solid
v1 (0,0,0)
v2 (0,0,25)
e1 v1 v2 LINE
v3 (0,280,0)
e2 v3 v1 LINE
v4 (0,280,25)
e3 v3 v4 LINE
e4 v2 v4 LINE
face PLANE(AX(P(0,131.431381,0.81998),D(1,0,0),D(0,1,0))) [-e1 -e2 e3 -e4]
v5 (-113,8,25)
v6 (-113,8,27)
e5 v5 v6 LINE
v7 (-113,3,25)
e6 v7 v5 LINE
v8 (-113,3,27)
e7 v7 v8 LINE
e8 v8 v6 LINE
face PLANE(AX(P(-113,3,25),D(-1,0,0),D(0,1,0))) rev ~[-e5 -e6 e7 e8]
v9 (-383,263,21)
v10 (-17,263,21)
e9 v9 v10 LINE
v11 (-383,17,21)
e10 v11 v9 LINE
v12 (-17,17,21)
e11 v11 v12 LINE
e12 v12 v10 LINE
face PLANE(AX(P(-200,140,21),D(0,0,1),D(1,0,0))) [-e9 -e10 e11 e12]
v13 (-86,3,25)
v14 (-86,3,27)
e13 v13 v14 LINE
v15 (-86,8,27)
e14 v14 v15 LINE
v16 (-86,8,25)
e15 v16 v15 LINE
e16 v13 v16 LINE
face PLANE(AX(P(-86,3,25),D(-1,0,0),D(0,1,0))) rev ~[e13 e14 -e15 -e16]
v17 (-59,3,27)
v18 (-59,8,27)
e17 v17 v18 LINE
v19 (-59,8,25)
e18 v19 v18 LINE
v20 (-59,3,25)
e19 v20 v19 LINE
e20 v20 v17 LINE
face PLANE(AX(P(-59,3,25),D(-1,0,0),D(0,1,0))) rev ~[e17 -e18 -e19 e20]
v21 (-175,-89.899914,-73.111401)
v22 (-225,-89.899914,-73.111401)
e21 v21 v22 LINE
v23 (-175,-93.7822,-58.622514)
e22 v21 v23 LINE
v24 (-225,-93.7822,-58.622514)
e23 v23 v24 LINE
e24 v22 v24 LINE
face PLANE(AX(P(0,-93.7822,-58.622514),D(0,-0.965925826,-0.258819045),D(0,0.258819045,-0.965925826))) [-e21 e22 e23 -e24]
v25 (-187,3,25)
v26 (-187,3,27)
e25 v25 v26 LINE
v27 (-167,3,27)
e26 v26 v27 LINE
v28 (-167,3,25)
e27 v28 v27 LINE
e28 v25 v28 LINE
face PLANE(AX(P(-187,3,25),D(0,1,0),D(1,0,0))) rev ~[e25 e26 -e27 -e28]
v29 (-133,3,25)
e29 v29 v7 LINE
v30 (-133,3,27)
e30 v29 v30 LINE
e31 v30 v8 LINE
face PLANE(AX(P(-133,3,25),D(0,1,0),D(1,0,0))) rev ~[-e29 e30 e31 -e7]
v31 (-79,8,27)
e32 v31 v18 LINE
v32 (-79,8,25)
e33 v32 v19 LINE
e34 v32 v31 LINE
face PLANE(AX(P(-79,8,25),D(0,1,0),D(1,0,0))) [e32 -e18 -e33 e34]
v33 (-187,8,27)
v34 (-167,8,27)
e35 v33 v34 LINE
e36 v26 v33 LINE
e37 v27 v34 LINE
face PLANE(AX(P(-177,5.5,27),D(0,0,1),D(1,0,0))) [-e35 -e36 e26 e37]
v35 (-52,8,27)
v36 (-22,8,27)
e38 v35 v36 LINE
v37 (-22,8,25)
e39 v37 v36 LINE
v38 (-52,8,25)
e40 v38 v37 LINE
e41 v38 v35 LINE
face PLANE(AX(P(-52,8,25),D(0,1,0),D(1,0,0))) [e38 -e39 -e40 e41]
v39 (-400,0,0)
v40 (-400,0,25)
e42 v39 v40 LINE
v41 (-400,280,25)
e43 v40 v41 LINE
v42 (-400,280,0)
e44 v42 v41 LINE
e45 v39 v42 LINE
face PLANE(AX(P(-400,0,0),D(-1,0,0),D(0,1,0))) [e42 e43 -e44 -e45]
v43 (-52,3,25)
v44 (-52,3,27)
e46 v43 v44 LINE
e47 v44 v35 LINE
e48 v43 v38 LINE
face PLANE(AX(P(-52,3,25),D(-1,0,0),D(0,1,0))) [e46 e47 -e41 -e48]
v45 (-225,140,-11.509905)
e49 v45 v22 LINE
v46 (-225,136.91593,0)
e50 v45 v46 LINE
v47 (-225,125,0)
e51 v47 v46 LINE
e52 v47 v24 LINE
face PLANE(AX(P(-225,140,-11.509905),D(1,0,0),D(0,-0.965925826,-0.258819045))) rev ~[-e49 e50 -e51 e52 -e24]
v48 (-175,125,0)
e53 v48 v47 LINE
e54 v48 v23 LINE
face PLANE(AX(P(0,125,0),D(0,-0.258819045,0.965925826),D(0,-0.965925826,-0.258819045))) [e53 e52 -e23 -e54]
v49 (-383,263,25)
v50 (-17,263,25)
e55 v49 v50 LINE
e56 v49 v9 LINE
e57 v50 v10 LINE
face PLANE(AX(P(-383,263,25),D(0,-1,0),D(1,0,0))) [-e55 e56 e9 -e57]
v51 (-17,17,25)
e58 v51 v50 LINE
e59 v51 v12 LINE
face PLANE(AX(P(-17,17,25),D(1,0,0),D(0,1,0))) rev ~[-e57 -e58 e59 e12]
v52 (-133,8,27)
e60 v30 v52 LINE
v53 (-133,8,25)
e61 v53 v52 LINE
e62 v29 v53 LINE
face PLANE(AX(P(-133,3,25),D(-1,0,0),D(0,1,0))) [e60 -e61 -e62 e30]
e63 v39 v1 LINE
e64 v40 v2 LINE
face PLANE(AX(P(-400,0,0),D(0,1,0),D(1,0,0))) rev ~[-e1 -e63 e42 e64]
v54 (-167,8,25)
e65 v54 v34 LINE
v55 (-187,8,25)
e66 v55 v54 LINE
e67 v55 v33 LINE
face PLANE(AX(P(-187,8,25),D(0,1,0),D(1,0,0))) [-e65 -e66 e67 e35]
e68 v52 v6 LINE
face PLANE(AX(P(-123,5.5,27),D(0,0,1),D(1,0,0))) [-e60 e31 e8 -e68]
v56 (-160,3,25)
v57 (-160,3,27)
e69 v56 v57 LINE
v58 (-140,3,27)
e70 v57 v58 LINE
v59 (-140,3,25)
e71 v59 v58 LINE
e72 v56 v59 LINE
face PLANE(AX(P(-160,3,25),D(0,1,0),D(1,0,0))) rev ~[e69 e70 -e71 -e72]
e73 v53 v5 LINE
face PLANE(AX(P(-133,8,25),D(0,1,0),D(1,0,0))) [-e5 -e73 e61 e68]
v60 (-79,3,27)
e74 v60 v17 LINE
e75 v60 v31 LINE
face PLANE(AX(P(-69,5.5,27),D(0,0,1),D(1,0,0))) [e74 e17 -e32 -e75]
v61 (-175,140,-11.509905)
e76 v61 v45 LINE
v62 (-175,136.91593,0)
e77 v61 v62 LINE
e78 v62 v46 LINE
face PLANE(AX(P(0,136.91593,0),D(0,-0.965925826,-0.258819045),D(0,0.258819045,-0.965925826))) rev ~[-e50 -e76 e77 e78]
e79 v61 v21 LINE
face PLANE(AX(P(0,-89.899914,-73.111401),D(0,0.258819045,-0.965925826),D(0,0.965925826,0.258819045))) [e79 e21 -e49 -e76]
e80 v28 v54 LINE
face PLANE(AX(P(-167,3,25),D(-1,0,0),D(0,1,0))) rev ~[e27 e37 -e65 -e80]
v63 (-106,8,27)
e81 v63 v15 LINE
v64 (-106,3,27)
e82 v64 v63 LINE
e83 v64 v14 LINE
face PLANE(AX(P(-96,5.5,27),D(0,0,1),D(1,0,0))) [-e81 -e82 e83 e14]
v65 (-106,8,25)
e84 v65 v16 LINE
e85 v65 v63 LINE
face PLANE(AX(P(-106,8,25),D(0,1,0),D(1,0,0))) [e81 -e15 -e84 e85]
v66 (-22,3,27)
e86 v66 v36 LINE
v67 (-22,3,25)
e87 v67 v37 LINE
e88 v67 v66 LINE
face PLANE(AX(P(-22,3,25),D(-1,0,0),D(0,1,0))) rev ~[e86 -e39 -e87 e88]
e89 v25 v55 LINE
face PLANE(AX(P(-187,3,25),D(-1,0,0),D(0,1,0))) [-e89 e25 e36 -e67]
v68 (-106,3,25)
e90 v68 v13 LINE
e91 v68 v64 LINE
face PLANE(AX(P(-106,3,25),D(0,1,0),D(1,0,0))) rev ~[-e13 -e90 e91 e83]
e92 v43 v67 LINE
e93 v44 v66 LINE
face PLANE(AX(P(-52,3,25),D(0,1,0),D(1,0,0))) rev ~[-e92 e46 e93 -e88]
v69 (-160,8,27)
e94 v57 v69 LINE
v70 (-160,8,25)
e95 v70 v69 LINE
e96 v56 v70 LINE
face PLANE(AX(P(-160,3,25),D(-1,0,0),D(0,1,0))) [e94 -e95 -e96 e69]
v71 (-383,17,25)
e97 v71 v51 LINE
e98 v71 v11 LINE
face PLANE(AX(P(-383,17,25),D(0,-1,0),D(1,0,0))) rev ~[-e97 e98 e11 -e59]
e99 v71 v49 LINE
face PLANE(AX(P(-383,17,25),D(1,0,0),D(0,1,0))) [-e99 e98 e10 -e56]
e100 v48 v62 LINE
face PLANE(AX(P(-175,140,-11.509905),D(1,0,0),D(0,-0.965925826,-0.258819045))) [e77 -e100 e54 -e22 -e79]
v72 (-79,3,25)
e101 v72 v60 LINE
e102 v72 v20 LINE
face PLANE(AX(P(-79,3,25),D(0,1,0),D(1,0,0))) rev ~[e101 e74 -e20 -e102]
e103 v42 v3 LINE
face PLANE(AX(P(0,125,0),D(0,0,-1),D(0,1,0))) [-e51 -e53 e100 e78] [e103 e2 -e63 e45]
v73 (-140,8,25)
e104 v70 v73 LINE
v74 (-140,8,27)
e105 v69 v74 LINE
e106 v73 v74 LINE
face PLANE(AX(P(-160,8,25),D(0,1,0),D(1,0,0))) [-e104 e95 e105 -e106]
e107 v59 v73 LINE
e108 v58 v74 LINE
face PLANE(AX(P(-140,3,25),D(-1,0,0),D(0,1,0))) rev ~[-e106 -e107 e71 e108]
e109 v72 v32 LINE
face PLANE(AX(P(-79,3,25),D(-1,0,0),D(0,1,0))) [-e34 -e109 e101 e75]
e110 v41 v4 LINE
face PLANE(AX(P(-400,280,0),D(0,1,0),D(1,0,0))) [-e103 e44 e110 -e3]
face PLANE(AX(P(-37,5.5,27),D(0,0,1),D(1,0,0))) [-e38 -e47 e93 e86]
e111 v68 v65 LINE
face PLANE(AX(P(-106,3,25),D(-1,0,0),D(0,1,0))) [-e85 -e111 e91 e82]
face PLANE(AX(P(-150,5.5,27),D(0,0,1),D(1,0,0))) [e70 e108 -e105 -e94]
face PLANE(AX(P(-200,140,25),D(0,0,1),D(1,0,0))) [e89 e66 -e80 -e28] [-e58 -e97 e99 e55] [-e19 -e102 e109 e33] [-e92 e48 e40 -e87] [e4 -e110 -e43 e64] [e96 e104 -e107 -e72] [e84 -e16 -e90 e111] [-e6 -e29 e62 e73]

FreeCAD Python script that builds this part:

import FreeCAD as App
import Part
import Sketcher

V = App.Vector
Q = App.Units.Quantity


def add_polygon(sketch, points):
    """Adds a closed chain of lines whose ends are joined by coincident constraints."""
    first, n = sketch.GeometryCount, len(points)
    for a, b in zip(points, points[1:] + points[:1]):
        sketch.addGeometry(Part.LineSegment(App.Vector(*a, 0), App.Vector(*b, 0)), False)
    for i in range(n):
        sketch.addConstraint(Sketcher.Constraint("Coincident", first + i, 2, first + (i + 1) % n, 1))

doc = App.newDocument("Part")
body = doc.addObject("PartDesign::Body", "Body")

sketch1 = body.newObject("Sketcher::SketchObject", "Sketch")
sketch1.AttachmentSupport = (doc.getObject("XY_Plane"), [""])
sketch1.MapMode = "FlatFace"
add_polygon(sketch1, [(-400, 280), (-400, 0), (0, 0), (0, 280)])
sketch1.addConstraint(Sketcher.Constraint("Vertical", 0))
sketch1.addConstraint(Sketcher.Constraint("Horizontal", 1))
sketch1.addConstraint(Sketcher.Constraint("Vertical", 2))
sketch1.addConstraint(Sketcher.Constraint("Horizontal", 3))
sketch1.addConstraint(Sketcher.Constraint("Coincident", 1, 2, -1, 1))
sketch1.addConstraint(Sketcher.Constraint("DistanceX", 1, 1, 1, 2, 400.0))
sketch1.addConstraint(Sketcher.Constraint("DistanceY", 0, 2, 0, 1, 280.0))
pad1 = body.newObject("PartDesign::Pad", "Pad")
pad1.Profile = sketch1
pad1.Length = 25

sketch2 = body.newObject("Sketcher::SketchObject", "Sketch001")
sketch2.AttachmentSupport = (doc.getObject("XY_Plane"), [""])
sketch2.MapMode = "FlatFace"
sketch2.AttachmentOffset = App.Placement(V(0, 0, 25), App.Rotation())
add_polygon(sketch2, [(-383, 263), (-383, 17), (-17, 17), (-17, 263)])
sketch2.addConstraint(Sketcher.Constraint("Vertical", 0))
sketch2.addConstraint(Sketcher.Constraint("Horizontal", 1))
sketch2.addConstraint(Sketcher.Constraint("Vertical", 2))
sketch2.addConstraint(Sketcher.Constraint("Horizontal", 3))
sketch2.addConstraint(Sketcher.Constraint("DistanceX", 1, 1, 1, 2, 366.0))
sketch2.addConstraint(Sketcher.Constraint("DistanceY", 0, 2, 0, 1, 246.0))
sketch2.addConstraint(Sketcher.Constraint("DistanceX", 0, 2, -1, 1, 383.0))
sketch2.addConstraint(Sketcher.Constraint("DistanceY", -1, 1, 0, 2, 17.0))
pocket1 = body.newObject("PartDesign::Pocket", "Pocket")
pocket1.Profile = sketch2
pocket1.Length = 4

sketch3 = body.newObject("Sketcher::SketchObject", "Sketch002")
sketch3.AttachmentSupport = (doc.getObject("XY_Plane"), [""])
sketch3.MapMode = "FlatFace"
sketch3.AttachmentOffset = App.Placement(V(0, 0, 25), App.Rotation())
add_polygon(sketch3, [(-52, 8), (-52, 3), (-22, 3), (-22, 8)])
add_polygon(sketch3, [(-187, 8), (-187, 3), (-167, 3), (-167, 8)])
add_polygon(sketch3, [(-160, 8), (-160, 3), (-140, 3), (-140, 8)])
add_polygon(sketch3, [(-133, 8), (-133, 3), (-113, 3), (-113, 8)])
add_polygon(sketch3, [(-106, 8), (-106, 3), (-86, 3), (-86, 8)])
add_polygon(sketch3, [(-79, 8), (-79, 3), (-59, 3), (-59, 8)])
sketch3.addConstraint(Sketcher.Constraint("Vertical", 0))
sketch3.addConstraint(Sketcher.Constraint("Horizontal", 1))
sketch3.addConstraint(Sketcher.Constraint("Vertical", 2))
sketch3.addConstraint(Sketcher.Constraint("Horizontal", 3))
sketch3.addConstraint(Sketcher.Constraint("Vertical", 4))
sketch3.addConstraint(Sketcher.Constraint("Horizontal", 5))
sketch3.addConstraint(Sketcher.Constraint("Vertical", 6))
sketch3.addConstraint(Sketcher.Constraint("Horizontal", 7))
sketch3.addConstraint(Sketcher.Constraint("Vertical", 8))
sketch3.addConstraint(Sketcher.Constraint("Horizontal", 9))
sketch3.addConstraint(Sketcher.Constraint("Vertical", 10))
sketch3.addConstraint(Sketcher.Constraint("Horizontal", 11))
sketch3.addConstraint(Sketcher.Constraint("Vertical", 12))
sketch3.addConstraint(Sketcher.Constraint("Horizontal", 13))
sketch3.addConstraint(Sketcher.Constraint("Vertical", 14))
sketch3.addConstraint(Sketcher.Constraint("Horizontal", 15))
sketch3.addConstraint(Sketcher.Constraint("Vertical", 16))
sketch3.addConstraint(Sketcher.Constraint("Horizontal", 17))
sketch3.addConstraint(Sketcher.Constraint("Vertical", 18))
sketch3.addConstraint(Sketcher.Constraint("Horizontal", 19))
sketch3.addConstraint(Sketcher.Constraint("Vertical", 20))
sketch3.addConstraint(Sketcher.Constraint("Horizontal", 21))
sketch3.addConstraint(Sketcher.Constraint("Vertical", 22))
sketch3.addConstraint(Sketcher.Constraint("Horizontal", 23))
sketch3.addConstraint(Sketcher.Constraint("Horizontal", 1, 2, 4, 2))
sketch3.addConstraint(Sketcher.Constraint("Horizontal", 3, 2, 6, 2))
sketch3.addConstraint(Sketcher.Constraint("Horizontal", 5, 2, 8, 2))
sketch3.addConstraint(Sketcher.Constraint("Horizontal", 7, 2, 10, 2))
sketch3.addConstraint(Sketcher.Constraint("Horizontal", 9, 2, 12, 2))
sketch3.addConstraint(Sketcher.Constraint("Horizontal", 11, 2, 14, 2))
sketch3.addConstraint(Sketcher.Constraint("Horizontal", 13, 2, 16, 2))
sketch3.addConstraint(Sketcher.Constraint("Horizontal", 15, 2, 18, 2))
sketch3.addConstraint(Sketcher.Constraint("Horizontal", 17, 2, 20, 2))
sketch3.addConstraint(Sketcher.Constraint("Horizontal", 19, 2, 22, 2))
sketch3.addConstraint(Sketcher.Constraint("Equal", 7, 9))
sketch3.addConstraint(Sketcher.Constraint("Equal", 11, 13))
sketch3.addConstraint(Sketcher.Constraint("Equal", 15, 17))
sketch3.addConstraint(Sketcher.Constraint("Equal", 19, 21))
sketch3.addConstraint(Sketcher.Constraint("DistanceX", 1, 1, 1, 2, 30.0))
sketch3.addConstraint(Sketcher.Constraint("DistanceX", 5, 1, 5, 2, 20.0))
sketch3.addConstraint(Sketcher.Constraint("DistanceY", 0, 2, 0, 1, 5.0))
sketch3.addConstraint(Sketcher.Constraint("DistanceX", 0, 2, -1, 1, 52.0))
sketch3.addConstraint(Sketcher.Constraint("DistanceY", -1, 1, 0, 2, 3.0))
sketch3.addConstraint(Sketcher.Constraint("DistanceX", 4, 2, -1, 1, 187.0))
sketch3.addConstraint(Sketcher.Constraint("DistanceX", 8, 2, -1, 1, 160.0))
sketch3.addConstraint(Sketcher.Constraint("DistanceX", 12, 2, -1, 1, 133.0))
sketch3.addConstraint(Sketcher.Constraint("DistanceX", 16, 2, -1, 1, 106.0))
sketch3.addConstraint(Sketcher.Constraint("DistanceX", 20, 2, -1, 1, 79.0))
pad2 = body.newObject("PartDesign::Pad", "Pad001")
pad2.Profile = sketch3
pad2.Length = 2

sketch4 = body.newObject("Sketcher::SketchObject", "Sketch003")
sketch4.AttachmentSupport = (doc.getObject("YZ_Plane"), [""])
sketch4.MapMode = "FlatFace"
add_polygon(sketch4, [(140, 0), (125, 0), (-93.7822, -58.622514), (-89.899914, -73.111401), (140, -11.509905)])
sketch4.addConstraint(Sketcher.Constraint("Horizontal", 0))
sketch4.addConstraint(Sketcher.Constraint("Vertical", 4))
sketch4.addConstraint(Sketcher.Constraint("PointOnObject", 0, 2, -1))
sketch4.addConstraint(Sketcher.Constraint("Perpendicular", 1, 2))
sketch4.addConstraint(Sketcher.Constraint("Perpendicular", 2, 3))
sketch4.addConstraint(Sketcher.Constraint("DistanceX", 0, 2, 0, 1, 15.0))
sketch4.addConstraint(Sketcher.Constraint("Angle", 1, Q("-165 deg")))
sketch4.addConstraint(Sketcher.Constraint("Distance", 2, 15.0))
sketch4.addConstraint(Sketcher.Constraint("DistanceX", -1, 1, 0, 2, 125.0))
sketch4.addConstraint(Sketcher.Constraint("Distance", 1, 226.5))
pad3 = body.newObject("PartDesign::Pad", "Pad002")
pad3.Profile = sketch4
pad3.Length = 300
pad3.Reversed = True

sketch5 = body.newObject("Sketcher::SketchObject", "Sketch004")
sketch5.Placement = App.Placement(V(0, 12.255698, -45.738887), App.Rotation(V(1, 0, 0), V(0, -0.965925826, -0.258819045), V(0, 0.258819045, -0.965925826), "ZXY"))
add_polygon(sketch5, [(-300, 105.759272), (-300, -132.250633), (-225, -132.250633), (-225, 105.759272)])
add_polygon(sketch5, [(-175, 105.759272), (-175, -132.250633), (0, -132.250633), (0, 105.759272)])
sketch5.addConstraint(Sketcher.Constraint("Vertical", 0))
sketch5.addConstraint(Sketcher.Constraint("Horizontal", 1))
sketch5.addConstraint(Sketcher.Constraint("Vertical", 2))
sketch5.addConstraint(Sketcher.Constraint("Horizontal", 3))
sketch5.addConstraint(Sketcher.Constraint("Vertical", 4))
sketch5.addConstraint(Sketcher.Constraint("Horizontal", 5))
sketch5.addConstraint(Sketcher.Constraint("Vertical", 6))
sketch5.addConstraint(Sketcher.Constraint("Horizontal", 7))
sketch5.addConstraint(Sketcher.Constraint("PointOnObject", 5, 2, -2))
sketch5.addConstraint(Sketcher.Constraint("Horizontal", 1, 2, 4, 2))
sketch5.addConstraint(Sketcher.Constraint("Horizontal", 3, 2, 6, 2))
sketch5.addConstraint(Sketcher.Constraint("DistanceX", 1, 1, 1, 2, 75.0))
sketch5.addConstraint(Sketcher.Constraint("DistanceX", 5, 1, 5, 2, 175.0))
sketch5.addConstraint(Sketcher.Constraint("DistanceX", 0, 2, -1, 1, 300.0))
sketch5.addConstraint(Sketcher.Constraint("DistanceY", 0, 2, 0, 1, 238.009905))
sketch5.addConstraint(Sketcher.Constraint("DistanceY", -1, 1, 2, 2, 105.759272))
pocket2 = body.newObject("PartDesign::Pocket", "Pocket001")
pocket2.Profile = sketch5
pocket2.Length = 15

sketch6 = body.newObject("Sketcher::SketchObject", "Sketch005")
sketch6.AttachmentSupport = (doc.getObject("YZ_Plane"), [""])
sketch6.MapMode = "FlatFace"
add_polygon(sketch6, [(136.91593, 0), (140, -11.509905), (140, 0)])
sketch6.addConstraint(Sketcher.Constraint("Vertical", 1))
sketch6.addConstraint(Sketcher.Constraint("Horizontal", 2))
sketch6.addConstraint(Sketcher.Constraint("PointOnObject", 1, 2, -1))
sketch6.addConstraint(Sketcher.Constraint("Angle", 0, Q("-75 deg")))
sketch6.addConstraint(Sketcher.Constraint("DistanceX", -1, 1, 0, 2, 140.0))
sketch6.addConstraint(Sketcher.Constraint("DistanceX", 2, 2, 2, 1, 3.08407))
pocket3 = body.newObject("PartDesign::Pocket", "Pocket002")
pocket3.Profile = sketch6
pocket3.Length = 300

sketch7 = body.newObject("Sketcher::SketchObject", "Sketch006")
sketch7.AttachmentSupport = (doc.getObject("YZ_Plane"), [""])
sketch7.MapMode = "FlatFace"
add_polygon(sketch7, [(136.117714, 2.978983), (125, 0), (136.91593, 0)])
sketch7.addConstraint(Sketcher.Constraint("Horizontal", 1))
sketch7.addConstraint(Sketcher.Constraint("PointOnObject", 0, 2, -1))
sketch7.addConstraint(Sketcher.Constraint("Perpendicular", 0, 2))
sketch7.addConstraint(Sketcher.Constraint("Angle", 0, Q("-165 deg")))
sketch7.addConstraint(Sketcher.Constraint("DistanceX", -1, 1, 0, 2, 125.0))
sketch7.addConstraint(Sketcher.Constraint("DistanceX", 1, 1, 1, 2, 11.91593))
pad4 = body.newObject("PartDesign::Pad", "Pad003")
pad4.Profile = sketch7
pad4.Length = 300
pad4.Reversed = True

doc.recompute()
